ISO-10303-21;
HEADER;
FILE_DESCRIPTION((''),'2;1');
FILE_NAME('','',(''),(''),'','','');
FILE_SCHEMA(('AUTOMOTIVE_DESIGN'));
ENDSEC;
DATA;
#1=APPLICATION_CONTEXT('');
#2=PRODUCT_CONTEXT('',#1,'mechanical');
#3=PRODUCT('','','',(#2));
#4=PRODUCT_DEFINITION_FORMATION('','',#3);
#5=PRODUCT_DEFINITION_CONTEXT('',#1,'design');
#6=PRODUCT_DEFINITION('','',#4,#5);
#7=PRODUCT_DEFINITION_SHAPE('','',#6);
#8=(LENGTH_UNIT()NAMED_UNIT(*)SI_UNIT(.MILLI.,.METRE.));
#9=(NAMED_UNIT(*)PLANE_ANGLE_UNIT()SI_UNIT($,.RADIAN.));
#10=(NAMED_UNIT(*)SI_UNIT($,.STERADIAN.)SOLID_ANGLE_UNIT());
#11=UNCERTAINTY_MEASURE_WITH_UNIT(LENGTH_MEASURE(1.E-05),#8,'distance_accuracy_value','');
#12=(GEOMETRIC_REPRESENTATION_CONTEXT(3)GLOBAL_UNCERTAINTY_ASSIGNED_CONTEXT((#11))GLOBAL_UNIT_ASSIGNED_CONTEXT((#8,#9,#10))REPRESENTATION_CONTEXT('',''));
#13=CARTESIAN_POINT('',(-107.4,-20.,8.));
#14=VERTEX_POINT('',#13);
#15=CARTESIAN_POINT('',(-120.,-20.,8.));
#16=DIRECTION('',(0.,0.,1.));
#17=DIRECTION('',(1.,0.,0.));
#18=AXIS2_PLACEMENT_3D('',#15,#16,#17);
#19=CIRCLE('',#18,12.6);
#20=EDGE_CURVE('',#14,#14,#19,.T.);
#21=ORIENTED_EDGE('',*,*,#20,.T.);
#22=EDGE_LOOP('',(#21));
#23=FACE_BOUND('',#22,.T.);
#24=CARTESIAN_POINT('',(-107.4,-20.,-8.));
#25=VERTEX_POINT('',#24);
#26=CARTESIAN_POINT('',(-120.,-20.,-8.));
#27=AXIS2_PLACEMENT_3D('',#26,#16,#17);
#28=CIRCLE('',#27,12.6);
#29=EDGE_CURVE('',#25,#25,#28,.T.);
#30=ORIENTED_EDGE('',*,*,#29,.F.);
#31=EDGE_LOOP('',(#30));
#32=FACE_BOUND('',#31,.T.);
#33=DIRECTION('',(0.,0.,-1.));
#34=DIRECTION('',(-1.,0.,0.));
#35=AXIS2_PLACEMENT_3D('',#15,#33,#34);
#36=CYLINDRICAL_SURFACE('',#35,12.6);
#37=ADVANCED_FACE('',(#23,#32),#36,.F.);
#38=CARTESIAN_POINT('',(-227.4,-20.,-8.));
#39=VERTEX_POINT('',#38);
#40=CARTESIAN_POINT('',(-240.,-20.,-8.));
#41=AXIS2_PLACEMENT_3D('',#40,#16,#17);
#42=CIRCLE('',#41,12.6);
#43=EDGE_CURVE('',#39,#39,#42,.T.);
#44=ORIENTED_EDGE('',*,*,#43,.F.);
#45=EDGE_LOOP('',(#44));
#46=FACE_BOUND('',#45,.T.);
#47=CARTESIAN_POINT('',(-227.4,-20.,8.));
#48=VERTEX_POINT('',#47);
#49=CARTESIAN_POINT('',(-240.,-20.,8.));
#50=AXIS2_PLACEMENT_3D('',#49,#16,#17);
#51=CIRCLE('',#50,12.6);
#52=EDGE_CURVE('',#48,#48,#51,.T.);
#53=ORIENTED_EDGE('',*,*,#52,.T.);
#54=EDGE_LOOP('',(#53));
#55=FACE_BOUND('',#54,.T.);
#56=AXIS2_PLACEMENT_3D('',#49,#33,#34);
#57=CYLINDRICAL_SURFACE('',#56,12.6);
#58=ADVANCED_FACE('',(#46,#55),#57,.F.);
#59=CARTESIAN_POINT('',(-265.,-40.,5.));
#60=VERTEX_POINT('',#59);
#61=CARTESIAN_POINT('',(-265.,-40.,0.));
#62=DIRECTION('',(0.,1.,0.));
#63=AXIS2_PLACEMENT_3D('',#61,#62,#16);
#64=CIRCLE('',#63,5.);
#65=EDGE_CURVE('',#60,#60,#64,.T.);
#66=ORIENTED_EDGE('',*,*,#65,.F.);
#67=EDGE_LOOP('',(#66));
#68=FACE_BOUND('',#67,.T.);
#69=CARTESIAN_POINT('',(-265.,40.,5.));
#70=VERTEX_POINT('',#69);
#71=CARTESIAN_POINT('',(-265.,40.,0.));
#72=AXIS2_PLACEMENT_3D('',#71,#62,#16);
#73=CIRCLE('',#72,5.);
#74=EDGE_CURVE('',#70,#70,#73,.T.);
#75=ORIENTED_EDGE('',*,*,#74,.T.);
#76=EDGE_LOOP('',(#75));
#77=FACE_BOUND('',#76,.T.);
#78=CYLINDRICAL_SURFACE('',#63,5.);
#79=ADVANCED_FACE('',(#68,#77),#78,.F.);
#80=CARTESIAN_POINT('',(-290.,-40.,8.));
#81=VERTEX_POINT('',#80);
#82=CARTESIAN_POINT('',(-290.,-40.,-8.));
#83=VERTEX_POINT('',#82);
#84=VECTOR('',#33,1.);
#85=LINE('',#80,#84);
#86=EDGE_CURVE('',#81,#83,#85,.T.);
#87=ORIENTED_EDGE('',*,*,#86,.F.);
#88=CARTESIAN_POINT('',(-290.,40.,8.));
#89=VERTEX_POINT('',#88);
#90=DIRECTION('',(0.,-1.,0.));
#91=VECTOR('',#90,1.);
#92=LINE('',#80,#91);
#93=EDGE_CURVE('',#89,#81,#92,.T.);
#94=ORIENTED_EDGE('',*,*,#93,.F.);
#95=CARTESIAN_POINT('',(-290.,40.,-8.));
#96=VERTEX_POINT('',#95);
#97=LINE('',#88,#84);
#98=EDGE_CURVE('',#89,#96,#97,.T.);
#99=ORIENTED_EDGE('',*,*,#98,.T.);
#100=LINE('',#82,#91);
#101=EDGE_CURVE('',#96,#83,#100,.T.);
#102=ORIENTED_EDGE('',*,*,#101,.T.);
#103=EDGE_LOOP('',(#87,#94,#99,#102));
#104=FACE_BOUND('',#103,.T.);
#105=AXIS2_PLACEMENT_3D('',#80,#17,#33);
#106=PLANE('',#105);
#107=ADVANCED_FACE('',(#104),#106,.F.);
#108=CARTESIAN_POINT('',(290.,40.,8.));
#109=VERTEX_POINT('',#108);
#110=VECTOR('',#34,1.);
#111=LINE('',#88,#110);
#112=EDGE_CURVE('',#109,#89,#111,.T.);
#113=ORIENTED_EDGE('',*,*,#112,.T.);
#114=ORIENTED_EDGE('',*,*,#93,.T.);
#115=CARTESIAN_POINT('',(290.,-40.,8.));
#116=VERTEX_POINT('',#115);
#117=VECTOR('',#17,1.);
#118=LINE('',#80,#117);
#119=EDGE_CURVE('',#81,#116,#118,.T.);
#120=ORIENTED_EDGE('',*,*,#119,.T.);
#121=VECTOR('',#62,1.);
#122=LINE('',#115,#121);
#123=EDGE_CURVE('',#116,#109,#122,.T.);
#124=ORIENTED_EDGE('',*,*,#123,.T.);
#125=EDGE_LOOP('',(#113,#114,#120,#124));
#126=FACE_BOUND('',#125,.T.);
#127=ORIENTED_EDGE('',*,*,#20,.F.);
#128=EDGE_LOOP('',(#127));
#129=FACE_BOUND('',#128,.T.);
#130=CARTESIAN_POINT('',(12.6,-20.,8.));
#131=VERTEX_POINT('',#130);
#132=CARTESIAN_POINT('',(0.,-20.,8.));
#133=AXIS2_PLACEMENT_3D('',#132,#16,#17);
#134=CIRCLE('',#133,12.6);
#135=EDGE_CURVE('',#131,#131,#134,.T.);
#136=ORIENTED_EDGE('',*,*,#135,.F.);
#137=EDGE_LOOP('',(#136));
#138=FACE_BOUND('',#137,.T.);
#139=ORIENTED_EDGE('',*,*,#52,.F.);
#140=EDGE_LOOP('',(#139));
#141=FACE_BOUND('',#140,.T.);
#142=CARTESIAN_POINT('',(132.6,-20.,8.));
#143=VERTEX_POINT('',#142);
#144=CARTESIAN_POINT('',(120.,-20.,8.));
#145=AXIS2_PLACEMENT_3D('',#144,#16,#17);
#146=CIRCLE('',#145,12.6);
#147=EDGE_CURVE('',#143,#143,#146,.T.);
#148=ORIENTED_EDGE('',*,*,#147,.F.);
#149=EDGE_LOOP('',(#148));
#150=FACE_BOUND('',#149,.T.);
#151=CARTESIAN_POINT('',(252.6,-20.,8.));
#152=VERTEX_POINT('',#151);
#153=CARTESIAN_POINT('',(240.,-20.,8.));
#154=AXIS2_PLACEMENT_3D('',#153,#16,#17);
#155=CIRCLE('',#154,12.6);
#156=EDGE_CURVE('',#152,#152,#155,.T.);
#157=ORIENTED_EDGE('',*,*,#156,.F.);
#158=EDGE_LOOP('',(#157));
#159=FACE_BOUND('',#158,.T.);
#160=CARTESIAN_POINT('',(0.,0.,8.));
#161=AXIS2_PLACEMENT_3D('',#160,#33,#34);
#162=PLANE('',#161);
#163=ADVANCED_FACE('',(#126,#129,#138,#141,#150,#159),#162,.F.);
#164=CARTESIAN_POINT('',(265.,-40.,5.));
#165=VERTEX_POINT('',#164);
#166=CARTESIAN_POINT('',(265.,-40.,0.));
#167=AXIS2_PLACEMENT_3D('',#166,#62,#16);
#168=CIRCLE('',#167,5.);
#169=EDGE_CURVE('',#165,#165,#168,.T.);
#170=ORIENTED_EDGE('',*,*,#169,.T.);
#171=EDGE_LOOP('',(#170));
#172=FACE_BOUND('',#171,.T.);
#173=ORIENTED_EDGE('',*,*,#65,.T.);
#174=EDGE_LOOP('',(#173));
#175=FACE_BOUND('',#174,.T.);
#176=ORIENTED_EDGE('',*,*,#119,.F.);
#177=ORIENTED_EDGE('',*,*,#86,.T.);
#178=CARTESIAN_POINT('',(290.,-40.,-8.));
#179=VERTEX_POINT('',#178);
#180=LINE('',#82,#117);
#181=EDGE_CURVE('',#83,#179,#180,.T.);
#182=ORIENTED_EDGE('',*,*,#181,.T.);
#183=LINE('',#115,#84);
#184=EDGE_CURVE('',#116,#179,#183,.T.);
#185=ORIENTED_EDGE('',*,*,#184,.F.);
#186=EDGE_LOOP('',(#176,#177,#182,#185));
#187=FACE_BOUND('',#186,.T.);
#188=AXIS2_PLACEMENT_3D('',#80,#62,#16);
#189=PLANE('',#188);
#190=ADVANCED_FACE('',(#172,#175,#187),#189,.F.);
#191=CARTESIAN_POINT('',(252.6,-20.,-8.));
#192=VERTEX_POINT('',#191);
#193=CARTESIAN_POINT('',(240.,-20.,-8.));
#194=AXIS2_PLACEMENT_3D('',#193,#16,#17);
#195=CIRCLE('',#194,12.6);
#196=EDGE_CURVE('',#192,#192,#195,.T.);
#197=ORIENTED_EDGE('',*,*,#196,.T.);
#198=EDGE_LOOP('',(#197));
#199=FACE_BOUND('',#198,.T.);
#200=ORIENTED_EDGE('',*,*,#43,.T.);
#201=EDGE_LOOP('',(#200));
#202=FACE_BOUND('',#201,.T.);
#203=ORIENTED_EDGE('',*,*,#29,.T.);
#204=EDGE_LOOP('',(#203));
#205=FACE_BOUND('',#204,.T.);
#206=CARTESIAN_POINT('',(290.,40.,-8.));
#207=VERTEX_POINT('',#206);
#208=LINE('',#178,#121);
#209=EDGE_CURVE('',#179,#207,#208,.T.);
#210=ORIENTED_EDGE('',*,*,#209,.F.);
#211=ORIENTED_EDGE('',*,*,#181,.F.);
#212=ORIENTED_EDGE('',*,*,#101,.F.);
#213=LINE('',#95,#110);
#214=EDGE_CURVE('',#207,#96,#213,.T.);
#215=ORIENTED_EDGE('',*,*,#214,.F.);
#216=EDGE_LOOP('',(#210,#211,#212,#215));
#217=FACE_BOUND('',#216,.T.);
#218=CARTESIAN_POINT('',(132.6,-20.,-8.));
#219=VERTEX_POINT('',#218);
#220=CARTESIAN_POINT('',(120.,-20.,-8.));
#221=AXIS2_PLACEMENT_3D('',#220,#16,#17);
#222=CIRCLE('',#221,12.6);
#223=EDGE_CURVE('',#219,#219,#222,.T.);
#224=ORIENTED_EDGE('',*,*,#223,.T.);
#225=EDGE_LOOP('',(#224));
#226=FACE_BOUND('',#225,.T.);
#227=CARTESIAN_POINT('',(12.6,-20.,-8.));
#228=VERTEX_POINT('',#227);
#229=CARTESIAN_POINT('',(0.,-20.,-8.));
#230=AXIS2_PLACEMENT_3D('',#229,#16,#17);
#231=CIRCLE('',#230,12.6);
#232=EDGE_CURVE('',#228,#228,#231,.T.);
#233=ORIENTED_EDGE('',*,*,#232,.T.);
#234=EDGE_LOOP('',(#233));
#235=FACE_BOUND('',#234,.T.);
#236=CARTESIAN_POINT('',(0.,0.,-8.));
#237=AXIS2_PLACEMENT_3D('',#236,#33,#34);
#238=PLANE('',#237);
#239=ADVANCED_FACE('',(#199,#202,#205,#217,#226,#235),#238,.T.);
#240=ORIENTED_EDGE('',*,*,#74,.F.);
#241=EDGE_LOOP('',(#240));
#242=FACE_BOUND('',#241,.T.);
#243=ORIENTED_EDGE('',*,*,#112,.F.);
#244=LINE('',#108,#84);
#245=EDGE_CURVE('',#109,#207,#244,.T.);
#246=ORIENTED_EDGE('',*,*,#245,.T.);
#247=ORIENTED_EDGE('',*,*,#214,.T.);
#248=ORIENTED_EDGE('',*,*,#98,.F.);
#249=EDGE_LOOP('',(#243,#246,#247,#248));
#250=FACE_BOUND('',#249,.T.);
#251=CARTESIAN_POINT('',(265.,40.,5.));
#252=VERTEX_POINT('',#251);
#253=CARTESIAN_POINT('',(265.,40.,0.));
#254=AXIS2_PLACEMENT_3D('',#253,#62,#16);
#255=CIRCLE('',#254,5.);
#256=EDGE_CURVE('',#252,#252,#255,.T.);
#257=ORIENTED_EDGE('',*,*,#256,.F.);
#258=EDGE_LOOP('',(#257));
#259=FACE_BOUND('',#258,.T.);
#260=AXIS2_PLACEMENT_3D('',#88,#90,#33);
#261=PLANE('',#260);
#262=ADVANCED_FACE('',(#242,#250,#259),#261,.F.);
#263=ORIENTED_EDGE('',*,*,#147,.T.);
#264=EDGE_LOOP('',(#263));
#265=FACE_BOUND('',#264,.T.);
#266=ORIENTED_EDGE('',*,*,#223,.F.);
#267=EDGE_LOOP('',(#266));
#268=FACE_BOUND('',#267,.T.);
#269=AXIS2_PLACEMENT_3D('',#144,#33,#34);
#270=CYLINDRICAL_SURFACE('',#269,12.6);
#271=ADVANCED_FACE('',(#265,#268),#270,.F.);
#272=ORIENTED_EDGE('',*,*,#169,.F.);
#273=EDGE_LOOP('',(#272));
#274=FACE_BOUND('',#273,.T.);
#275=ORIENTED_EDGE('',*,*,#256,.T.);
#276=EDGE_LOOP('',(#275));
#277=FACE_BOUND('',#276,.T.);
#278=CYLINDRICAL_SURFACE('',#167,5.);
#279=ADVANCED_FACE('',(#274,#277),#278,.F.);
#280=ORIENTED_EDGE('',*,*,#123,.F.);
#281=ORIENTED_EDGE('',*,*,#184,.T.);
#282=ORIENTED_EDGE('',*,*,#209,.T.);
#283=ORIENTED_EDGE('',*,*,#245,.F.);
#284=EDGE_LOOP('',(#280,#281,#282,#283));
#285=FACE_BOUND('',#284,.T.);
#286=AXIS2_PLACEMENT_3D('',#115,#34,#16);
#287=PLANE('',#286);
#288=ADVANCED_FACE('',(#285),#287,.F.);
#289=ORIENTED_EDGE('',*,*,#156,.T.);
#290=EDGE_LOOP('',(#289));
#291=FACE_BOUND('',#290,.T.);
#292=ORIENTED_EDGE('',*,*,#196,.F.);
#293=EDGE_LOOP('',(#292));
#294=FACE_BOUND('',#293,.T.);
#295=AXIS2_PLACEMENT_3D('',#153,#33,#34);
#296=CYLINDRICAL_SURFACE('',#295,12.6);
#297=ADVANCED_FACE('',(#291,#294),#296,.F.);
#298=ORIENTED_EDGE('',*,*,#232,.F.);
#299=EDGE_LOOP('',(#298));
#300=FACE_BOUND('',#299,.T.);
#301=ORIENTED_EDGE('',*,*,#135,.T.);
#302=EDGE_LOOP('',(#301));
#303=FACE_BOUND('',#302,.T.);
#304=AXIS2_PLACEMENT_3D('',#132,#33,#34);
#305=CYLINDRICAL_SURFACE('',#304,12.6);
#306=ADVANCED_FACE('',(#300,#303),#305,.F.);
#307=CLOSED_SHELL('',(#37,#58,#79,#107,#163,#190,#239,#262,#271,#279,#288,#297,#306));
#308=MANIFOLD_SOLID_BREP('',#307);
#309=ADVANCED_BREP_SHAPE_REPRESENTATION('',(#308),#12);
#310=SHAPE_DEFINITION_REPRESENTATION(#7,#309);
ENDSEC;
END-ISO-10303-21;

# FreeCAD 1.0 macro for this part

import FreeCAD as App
import Part
import Sketcher

doc = App.newDocument("Part")
params = doc.addObject("Spreadsheet::Sheet", "Params")
for row, (alias, value) in enumerate([
    ("sketch1_diameter", "25.2 mm"),
    ("sketch1_width", "580 mm"),
    ("sketch1_height", "80 mm"),
    ("pad1_length", "16 mm"),
    ("sketch2_diameter", "10 mm"),
], start=1):
    params.set(f"A{row}", alias)
    params.set(f"B{row}", "=" + value)
    params.setAlias(f"B{row}", alias)

body = doc.addObject("PartDesign::Body", "Body")

# Sketch on XY plane
sketch1 = body.newObject("Sketcher::SketchObject", "Sketch")
sketch1.AttachmentSupport = (doc.getObject("XY_Plane"), [""])
sketch1.MapMode = "FlatFace"
sketch1.addGeometry(Part.LineSegment(App.Vector(-290, 40, 0), App.Vector(-290, -40, 0)), False)
sketch1.addGeometry(Part.LineSegment(App.Vector(-290, -40, 0), App.Vector(290, -40, 0)), False)
sketch1.addGeometry(Part.LineSegment(App.Vector(290, -40, 0), App.Vector(290, 40, 0)), False)
sketch1.addGeometry(Part.LineSegment(App.Vector(290, 40, 0), App.Vector(-290, 40, 0)), False)
sketch1.addGeometry(Part.Circle(App.Vector(-240, -20, 0), App.Vector(0, 0, 1), 13), False)
sketch1.addGeometry(Part.Circle(App.Vector(-120, -20, 0), App.Vector(0, 0, 1), 13), False)
sketch1.addGeometry(Part.Circle(App.Vector(0, -20, 0), App.Vector(0, 0, 1), 13), False)
sketch1.addGeometry(Part.Circle(App.Vector(120, -20, 0), App.Vector(0, 0, 1), 13), False)
sketch1.addGeometry(Part.Circle(App.Vector(240, -20, 0), App.Vector(0, 0, 1), 13), False)
sketch1.addConstraint(Sketcher.Constraint("Coincident", 0, 2, 1, 1))
sketch1.addConstraint(Sketcher.Constraint("Coincident", 1, 2, 2, 1))
sketch1.addConstraint(Sketcher.Constraint("Coincident", 2, 2, 3, 1))
sketch1.addConstraint(Sketcher.Constraint("Coincident", 3, 2, 0, 1))
sketch1.addConstraint(Sketcher.Constraint("Vertical", 0))
sketch1.addConstraint(Sketcher.Constraint("Horizontal", 1))
sketch1.addConstraint(Sketcher.Constraint("Vertical", 2))
sketch1.addConstraint(Sketcher.Constraint("Horizontal", 3))
sketch1.addConstraint(Sketcher.Constraint("Equal", 4, 5))
sketch1.addConstraint(Sketcher.Constraint("Equal", 5, 6))
sketch1.addConstraint(Sketcher.Constraint("Equal", 6, 7))
sketch1.addConstraint(Sketcher.Constraint("Equal", 7, 8))
sketch1.addConstraint(Sketcher.Constraint("Symmetric", 0, 2, 2, 2, -1, 1))
sketch1.addConstraint(Sketcher.Constraint("Symmetric", 5, 3, 7, 3, -2))
sketch1.addConstraint(Sketcher.Constraint("Symmetric", 4, 3, 8, 3, -2))
sketch1.addConstraint(Sketcher.Constraint("PointOnObject", 6, 3, -2))
sketch1.addConstraint(Sketcher.Constraint("Horizontal", 4, 3, 5, 3))
sketch1.addConstraint(Sketcher.Constraint("Horizontal", 5, 3, 6, 3))
sketch1.addConstraint(Sketcher.Constraint("Diameter", 4, 25.2))
sketch1.addConstraint(Sketcher.Constraint("DistanceX", 1, 1, 1, 2, 580.0))
sketch1.addConstraint(Sketcher.Constraint("DistanceY", 0, 2, 0, 1, 80.0))
sketch1.addConstraint(Sketcher.Constraint("DistanceX", 4, 3, -1, 1, 240.0))
sketch1.addConstraint(Sketcher.Constraint("DistanceY", 4, 3, -1, 1, 20.0))
sketch1.addConstraint(Sketcher.Constraint("DistanceX", 5, 3, -1, 1, 120.0))
sketch1.setExpression("Constraints[18]", "Params.sketch1_diameter")
sketch1.setExpression("Constraints[19]", "Params.sketch1_width")
sketch1.setExpression("Constraints[20]", "Params.sketch1_height")
pad1 = body.newObject("PartDesign::Pad", "Pad")
pad1.Profile = sketch1
pad1.setExpression("Length", "Params.pad1_length")
pad1.Midplane = True

# Sketch on XZ plane
sketch2 = body.newObject("Sketcher::SketchObject", "Sketch001")
sketch2.AttachmentSupport = (doc.getObject("XZ_Plane"), [""])
sketch2.MapMode = "FlatFace"
sketch2.AttachmentOffset = App.Placement(App.Vector(0, 0, -40), App.Rotation())
sketch2.addGeometry(Part.Circle(App.Vector(-265, 0, 0), App.Vector(0, 0, 1), 5), False)
sketch2.addGeometry(Part.Circle(App.Vector(265, 0, 0), App.Vector(0, 0, 1), 5), False)
sketch2.addConstraint(Sketcher.Constraint("Equal", 0, 1))
sketch2.addConstraint(Sketcher.Constraint("Symmetric", 0, 3, 1, 3, -1, 1))
sketch2.addConstraint(Sketcher.Constraint("PointOnObject", 0, 3, -1))
sketch2.addConstraint(Sketcher.Constraint("Diameter", 0, 10.0))
sketch2.addConstraint(Sketcher.Constraint("DistanceX", 0, 3, -1, 1, 265.0))
sketch2.setExpression("Constraints[3]", "Params.sketch2_diameter")
pocket1 = body.newObject("PartDesign::Pocket", "Pocket")
pocket1.Profile = sketch2
pocket1.Type = "ThroughAll"
pocket1.Reversed = True

doc.recompute()
